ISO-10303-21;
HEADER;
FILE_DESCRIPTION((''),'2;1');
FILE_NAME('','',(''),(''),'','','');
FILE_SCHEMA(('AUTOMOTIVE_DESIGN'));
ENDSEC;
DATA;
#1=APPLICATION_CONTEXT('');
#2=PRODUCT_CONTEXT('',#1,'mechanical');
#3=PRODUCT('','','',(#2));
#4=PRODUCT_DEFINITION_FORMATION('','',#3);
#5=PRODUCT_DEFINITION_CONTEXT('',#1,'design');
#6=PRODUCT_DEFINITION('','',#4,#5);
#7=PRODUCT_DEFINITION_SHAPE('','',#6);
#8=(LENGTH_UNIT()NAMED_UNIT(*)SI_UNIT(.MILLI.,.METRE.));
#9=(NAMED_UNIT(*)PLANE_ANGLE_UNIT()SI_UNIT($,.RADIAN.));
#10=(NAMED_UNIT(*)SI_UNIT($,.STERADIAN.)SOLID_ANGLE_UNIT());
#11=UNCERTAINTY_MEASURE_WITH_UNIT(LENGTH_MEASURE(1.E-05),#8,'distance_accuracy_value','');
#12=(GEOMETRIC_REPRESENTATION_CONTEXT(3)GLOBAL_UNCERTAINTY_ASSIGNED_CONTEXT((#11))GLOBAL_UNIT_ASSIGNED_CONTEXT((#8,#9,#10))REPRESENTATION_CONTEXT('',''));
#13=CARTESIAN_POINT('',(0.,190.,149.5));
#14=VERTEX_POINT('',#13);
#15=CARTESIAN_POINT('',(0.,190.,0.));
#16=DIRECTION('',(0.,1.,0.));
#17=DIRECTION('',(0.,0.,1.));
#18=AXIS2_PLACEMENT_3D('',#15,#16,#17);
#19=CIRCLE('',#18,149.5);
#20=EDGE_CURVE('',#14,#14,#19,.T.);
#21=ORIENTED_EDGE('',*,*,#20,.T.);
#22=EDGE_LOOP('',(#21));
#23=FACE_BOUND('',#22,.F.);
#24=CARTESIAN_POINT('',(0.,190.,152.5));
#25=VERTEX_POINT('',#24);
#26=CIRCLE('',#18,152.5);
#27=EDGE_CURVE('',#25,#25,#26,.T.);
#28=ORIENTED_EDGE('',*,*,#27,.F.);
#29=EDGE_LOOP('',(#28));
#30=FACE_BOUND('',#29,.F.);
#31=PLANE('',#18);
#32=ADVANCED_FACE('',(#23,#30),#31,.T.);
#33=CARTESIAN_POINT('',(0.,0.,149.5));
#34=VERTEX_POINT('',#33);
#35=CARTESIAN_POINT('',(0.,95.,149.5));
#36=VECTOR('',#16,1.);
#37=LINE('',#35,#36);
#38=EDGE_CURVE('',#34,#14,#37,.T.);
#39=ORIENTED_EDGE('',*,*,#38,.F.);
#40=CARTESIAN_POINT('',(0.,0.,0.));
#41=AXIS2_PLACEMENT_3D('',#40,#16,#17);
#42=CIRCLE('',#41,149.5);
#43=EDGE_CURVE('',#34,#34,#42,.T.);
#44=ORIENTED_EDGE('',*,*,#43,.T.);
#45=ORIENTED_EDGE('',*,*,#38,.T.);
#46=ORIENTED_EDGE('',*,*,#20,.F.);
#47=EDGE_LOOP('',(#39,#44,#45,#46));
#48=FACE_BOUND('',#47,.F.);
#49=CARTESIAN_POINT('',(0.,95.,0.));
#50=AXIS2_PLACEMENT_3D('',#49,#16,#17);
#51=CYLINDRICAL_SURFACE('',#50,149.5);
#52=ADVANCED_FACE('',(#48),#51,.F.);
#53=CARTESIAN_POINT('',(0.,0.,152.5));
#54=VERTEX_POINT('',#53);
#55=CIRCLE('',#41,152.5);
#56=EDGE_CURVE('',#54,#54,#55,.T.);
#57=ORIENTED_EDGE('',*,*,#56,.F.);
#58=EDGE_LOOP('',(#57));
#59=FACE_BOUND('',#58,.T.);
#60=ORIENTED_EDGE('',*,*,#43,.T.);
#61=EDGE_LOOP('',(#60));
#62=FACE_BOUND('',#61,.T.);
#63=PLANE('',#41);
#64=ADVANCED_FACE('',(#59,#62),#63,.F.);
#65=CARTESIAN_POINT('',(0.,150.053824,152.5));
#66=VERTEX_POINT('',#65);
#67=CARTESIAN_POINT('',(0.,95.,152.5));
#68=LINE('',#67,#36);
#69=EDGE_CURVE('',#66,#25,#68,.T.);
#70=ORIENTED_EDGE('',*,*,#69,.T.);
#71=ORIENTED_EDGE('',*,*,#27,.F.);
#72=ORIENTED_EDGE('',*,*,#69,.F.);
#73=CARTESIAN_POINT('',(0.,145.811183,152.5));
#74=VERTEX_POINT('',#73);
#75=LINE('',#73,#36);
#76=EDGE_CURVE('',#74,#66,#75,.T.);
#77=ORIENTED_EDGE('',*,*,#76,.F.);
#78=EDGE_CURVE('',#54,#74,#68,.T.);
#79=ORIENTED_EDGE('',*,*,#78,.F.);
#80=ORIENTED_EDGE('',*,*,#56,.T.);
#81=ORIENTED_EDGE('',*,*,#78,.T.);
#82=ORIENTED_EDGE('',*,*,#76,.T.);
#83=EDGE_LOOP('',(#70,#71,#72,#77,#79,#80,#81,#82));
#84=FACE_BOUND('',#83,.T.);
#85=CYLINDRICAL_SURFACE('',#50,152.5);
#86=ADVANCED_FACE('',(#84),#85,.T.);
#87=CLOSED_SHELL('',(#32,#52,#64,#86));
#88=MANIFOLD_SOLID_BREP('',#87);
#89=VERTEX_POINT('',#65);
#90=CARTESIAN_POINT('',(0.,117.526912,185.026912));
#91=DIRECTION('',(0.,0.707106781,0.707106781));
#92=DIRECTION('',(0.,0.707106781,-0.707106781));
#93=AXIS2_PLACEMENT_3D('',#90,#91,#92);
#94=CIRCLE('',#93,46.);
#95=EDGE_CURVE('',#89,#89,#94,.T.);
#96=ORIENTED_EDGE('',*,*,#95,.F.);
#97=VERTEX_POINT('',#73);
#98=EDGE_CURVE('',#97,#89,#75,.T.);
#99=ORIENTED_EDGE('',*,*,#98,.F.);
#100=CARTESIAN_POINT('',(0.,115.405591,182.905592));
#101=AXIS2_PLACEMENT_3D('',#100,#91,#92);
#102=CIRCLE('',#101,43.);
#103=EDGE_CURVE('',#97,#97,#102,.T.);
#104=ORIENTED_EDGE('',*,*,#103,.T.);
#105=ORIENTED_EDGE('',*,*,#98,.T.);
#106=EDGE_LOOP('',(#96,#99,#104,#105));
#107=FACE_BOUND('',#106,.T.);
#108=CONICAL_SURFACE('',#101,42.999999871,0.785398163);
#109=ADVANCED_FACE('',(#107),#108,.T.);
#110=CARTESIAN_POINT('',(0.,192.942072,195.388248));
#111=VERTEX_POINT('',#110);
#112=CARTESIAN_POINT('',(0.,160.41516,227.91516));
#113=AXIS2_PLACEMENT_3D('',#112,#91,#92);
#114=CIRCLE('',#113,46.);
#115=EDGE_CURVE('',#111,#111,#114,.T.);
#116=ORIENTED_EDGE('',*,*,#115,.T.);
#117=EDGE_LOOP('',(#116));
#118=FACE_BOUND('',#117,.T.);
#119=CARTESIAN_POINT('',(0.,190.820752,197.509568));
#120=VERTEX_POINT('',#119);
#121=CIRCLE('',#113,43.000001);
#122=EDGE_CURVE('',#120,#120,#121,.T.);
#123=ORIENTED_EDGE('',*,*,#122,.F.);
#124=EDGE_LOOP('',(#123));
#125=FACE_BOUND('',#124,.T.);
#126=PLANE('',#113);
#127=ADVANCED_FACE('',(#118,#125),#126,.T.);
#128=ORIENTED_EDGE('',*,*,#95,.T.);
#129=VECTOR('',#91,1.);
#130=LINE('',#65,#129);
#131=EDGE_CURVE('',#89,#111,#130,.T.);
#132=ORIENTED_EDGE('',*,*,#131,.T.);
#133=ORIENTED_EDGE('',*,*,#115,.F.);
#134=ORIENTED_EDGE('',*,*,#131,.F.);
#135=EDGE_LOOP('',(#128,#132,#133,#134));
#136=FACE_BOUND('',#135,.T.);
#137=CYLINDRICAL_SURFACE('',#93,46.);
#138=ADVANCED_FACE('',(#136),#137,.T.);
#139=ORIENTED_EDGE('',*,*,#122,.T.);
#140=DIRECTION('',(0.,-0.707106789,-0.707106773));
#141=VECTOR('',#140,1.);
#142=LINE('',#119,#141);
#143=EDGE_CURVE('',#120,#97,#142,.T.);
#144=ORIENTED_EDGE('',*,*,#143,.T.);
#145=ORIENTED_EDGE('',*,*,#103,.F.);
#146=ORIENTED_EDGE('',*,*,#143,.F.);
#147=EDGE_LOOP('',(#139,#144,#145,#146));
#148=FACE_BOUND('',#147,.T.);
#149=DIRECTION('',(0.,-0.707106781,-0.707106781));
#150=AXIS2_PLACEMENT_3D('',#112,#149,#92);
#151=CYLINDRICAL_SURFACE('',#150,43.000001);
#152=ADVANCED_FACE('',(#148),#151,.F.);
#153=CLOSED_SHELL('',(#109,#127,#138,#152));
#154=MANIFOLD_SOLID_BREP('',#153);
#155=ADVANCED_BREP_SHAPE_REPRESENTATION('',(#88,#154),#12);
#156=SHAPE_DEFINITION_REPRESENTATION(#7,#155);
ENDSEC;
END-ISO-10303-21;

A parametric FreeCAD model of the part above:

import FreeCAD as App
import Part
import Sketcher

V = App.Vector
Q = App.Units.Quantity

doc = App.newDocument("Part")
body = doc.addObject("PartDesign::Body", "Body")
body.AllowCompound = True

sketch1 = body.newObject("Sketcher::SketchObject", "Sketch")
sketch1.AttachmentSupport = (doc.getObject("YZ_Plane"), [""])
sketch1.MapMode = "FlatFace"
sketch1.addGeometry(Part.LineSegment(V(0, 152.5, 0), V(0, 149.5, 0)), False)
sketch1.addGeometry(Part.LineSegment(V(0, 149.5, 0), V(190, 149.5, 0)), False)
sketch1.addGeometry(Part.LineSegment(V(190, 149.5, 0), V(190, 152.5, 0)), False)
sketch1.addGeometry(Part.LineSegment(V(190, 152.5, 0), V(0, 152.5, 0)), False)
sketch1.addConstraint(Sketcher.Constraint("Coincident", 0, 2, 1, 1))
sketch1.addConstraint(Sketcher.Constraint("Coincident", 1, 2, 2, 1))
sketch1.addConstraint(Sketcher.Constraint("Coincident", 2, 2, 3, 1))
sketch1.addConstraint(Sketcher.Constraint("Coincident", 3, 2, 0, 1))
sketch1.addConstraint(Sketcher.Constraint("Vertical", 0))
sketch1.addConstraint(Sketcher.Constraint("Horizontal", 1))
sketch1.addConstraint(Sketcher.Constraint("Vertical", 2))
sketch1.addConstraint(Sketcher.Constraint("Horizontal", 3))
sketch1.addConstraint(Sketcher.Constraint("PointOnObject", 0, 2, -2))
sketch1.addConstraint(Sketcher.Constraint("DistanceX", 1, 1, 1, 2, Q("190 mm")))
sketch1.addConstraint(Sketcher.Constraint("DistanceY", 0, 2, 0, 1, Q("3 mm")))
sketch1.addConstraint(Sketcher.Constraint("DistanceY", -1, 1, 0, 2, Q("149.5 mm")))
revolution = body.newObject("PartDesign::Revolution", "Revolution")
revolution.Profile = sketch1
revolution.ReferenceAxis = (sketch1, ["H_Axis"])
revolution.Angle = 360

sketch2 = body.newObject("Sketcher::SketchObject", "Sketch001")
sketch2.AttachmentSupport = (doc.getObject("YZ_Plane"), [""])
sketch2.MapMode = "FlatFace"
sketch2.addGeometry(Part.LineSegment(V(190.8, 197.5, 0), V(145.8, 152.5, 0)), False)
sketch2.addGeometry(Part.LineSegment(V(145.8, 152.5, 0), V(150.1, 152.5, 0)), False)
sketch2.addGeometry(Part.LineSegment(V(150.1, 152.5, 0), V(192.9, 195.4, 0)), False)
sketch2.addGeometry(Part.LineSegment(V(192.9, 195.4, 0), V(190.8, 197.5, 0)), False)
sketch2.addGeometry(Part.LineSegment(V(115.4, 182.9, 0), V(160.4, 227.9, 0)), True)
sketch2.addConstraint(Sketcher.Constraint("Coincident", 0, 2, 1, 1))
sketch2.addConstraint(Sketcher.Constraint("Coincident", 1, 2, 2, 1))
sketch2.addConstraint(Sketcher.Constraint("Coincident", 2, 2, 3, 1))
sketch2.addConstraint(Sketcher.Constraint("Coincident", 3, 2, 0, 1))
sketch2.addConstraint(Sketcher.Constraint("Horizontal", 1))
sketch2.addConstraint(Sketcher.Constraint("Parallel", 0, 2))
sketch2.addConstraint(Sketcher.Constraint("Perpendicular", 2, 3))
sketch2.addConstraint(Sketcher.Constraint("Perpendicular", 3, 4))
sketch2.addConstraint(Sketcher.Constraint("Equal", 0, 4))
sketch2.addConstraint(Sketcher.Constraint("Angle", 0, Q("-135.000001 deg")))
sketch2.addConstraint(Sketcher.Constraint("Distance", 3, Q("3 mm")))
sketch2.addConstraint(Sketcher.Constraint("DistanceY", -1, 1, 0, 2, Q("152.5 mm")))
sketch2.addConstraint(Sketcher.Constraint("Distance", 2, Q("60.653142 mm")))
sketch2.addConstraint(Sketcher.Constraint("DistanceX", -1, 1, 2, 2, Q("192.942072 mm")))
sketch2.addConstraint(Sketcher.Constraint("DistanceX", -1, 1, 4, 1, Q("115.405591 mm")))
sketch2.addConstraint(Sketcher.Constraint("DistanceY", -1, 1, 4, 1, Q("182.905591 mm")))
revolution2 = body.newObject("PartDesign::Revolution", "Revolution001")
revolution2.Profile = sketch2
revolution2.ReferenceAxis = (sketch2, ["Axis0"])
revolution2.Angle = 360

doc.recompute()
